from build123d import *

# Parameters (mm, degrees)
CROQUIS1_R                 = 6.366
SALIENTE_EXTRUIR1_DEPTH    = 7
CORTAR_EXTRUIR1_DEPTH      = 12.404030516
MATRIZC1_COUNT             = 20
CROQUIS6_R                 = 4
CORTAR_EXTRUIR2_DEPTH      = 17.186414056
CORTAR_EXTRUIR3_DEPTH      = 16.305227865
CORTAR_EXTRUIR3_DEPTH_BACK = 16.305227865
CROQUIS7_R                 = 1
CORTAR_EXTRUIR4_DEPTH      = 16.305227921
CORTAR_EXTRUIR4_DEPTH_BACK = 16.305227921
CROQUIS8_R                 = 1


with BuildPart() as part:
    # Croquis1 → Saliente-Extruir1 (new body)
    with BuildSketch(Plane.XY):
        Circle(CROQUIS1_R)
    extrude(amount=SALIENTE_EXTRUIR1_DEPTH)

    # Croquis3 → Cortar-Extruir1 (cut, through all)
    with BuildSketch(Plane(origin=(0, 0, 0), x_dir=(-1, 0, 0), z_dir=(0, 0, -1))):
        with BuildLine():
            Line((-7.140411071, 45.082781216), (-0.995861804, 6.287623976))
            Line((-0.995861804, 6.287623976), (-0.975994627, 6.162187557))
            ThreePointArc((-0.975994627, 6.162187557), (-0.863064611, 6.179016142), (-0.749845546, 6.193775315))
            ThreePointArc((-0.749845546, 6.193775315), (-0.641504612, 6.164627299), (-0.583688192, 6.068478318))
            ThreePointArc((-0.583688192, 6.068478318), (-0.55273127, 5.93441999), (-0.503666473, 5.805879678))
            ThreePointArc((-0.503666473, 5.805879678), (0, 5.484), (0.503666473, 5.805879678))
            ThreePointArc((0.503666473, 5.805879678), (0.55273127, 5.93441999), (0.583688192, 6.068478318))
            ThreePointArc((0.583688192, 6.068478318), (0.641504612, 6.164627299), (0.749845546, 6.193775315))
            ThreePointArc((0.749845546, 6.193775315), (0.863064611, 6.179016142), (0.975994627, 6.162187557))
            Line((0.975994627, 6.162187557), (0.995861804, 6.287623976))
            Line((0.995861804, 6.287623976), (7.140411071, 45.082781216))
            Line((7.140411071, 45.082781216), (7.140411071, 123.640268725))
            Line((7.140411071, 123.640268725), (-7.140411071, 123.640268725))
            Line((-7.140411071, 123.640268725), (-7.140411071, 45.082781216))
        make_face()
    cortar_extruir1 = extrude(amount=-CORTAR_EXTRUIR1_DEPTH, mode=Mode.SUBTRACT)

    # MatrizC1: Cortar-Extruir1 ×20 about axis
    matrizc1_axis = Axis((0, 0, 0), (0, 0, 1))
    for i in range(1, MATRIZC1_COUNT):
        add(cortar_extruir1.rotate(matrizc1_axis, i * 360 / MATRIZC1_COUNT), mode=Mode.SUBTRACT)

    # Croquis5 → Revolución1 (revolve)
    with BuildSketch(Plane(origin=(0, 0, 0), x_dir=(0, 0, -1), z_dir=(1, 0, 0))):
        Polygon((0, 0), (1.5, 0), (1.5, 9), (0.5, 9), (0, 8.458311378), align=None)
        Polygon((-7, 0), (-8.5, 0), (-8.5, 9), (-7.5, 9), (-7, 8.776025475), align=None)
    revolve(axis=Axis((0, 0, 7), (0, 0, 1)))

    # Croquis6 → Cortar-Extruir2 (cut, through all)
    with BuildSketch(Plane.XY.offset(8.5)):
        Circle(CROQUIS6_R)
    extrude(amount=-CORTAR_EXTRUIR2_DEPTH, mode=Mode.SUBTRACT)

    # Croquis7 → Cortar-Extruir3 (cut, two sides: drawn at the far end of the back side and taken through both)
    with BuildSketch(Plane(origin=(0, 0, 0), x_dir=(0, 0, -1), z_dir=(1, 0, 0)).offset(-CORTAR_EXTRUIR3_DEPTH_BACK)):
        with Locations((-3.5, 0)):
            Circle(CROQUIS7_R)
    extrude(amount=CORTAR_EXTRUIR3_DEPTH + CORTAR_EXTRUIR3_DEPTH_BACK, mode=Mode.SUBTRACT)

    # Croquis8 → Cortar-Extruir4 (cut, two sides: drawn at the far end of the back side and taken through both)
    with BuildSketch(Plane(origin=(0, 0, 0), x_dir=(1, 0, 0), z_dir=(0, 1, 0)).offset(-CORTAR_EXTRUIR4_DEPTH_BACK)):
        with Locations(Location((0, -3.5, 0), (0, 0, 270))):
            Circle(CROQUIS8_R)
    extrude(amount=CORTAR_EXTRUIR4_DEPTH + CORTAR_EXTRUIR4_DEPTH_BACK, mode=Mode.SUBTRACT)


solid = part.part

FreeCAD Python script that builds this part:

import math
import FreeCAD as App
import Part
import Sketcher
Q = App.Units.Quantity


def add_polygon(sketch, points):
    """Adds a closed chain of lines whose ends are joined by coincident constraints."""
    first, n = sketch.GeometryCount, len(points)
    for a, b in zip(points, points[1:] + points[:1]):
        sketch.addGeometry(Part.LineSegment(App.Vector(*a, 0), App.Vector(*b, 0)), False)
    for i in range(n):
        sketch.addConstraint(Sketcher.Constraint("Coincident", first + i, 2, first + (i + 1) % n, 1))

doc = App.newDocument("Part")
body = doc.addObject("PartDesign::Body", "Body")

# Sketch on XY plane
sketch1 = doc.addObject("Sketcher::SketchObject", "Sketch")
body.addObject(sketch1)
sketch1.AttachmentSupport = (doc.XY_Plane, [""])
sketch1.MapMode = "FlatFace"
sketch1.addGeometry(Part.Circle(App.Vector(0, 0, 0), App.Vector(0, 0, 1), 6.366), False)
sketch1.addConstraint([
    Sketcher.Constraint("Coincident", 0, 3, -1, 1),
    Sketcher.Constraint("Diameter", 0, 12.732),
])
pad1 = doc.addObject("PartDesign::Pad", "Pad")
body.addObject(pad1)
pad1.Profile = sketch1
pad1.Length = 7

# Sketch on XY plane
sketch2 = doc.addObject("Sketcher::SketchObject", "Sketch001")
body.addObject(sketch2)
sketch2.AttachmentSupport = (doc.XY_Plane, [""])
sketch2.MapMode = "FlatFace"
sketch2.addGeometry([
    Part.LineSegment(App.Vector(7.140411, 45.082781, 0), App.Vector(0.995862, 6.287624, 0)),  # 0
    Part.LineSegment(App.Vector(0.995862, 6.287624, 0), App.Vector(0.975995, 6.162188, 0)),  # 1
    Part.ArcOfCircle(Part.Circle(App.Vector(0.000001, 0.000004, 0), App.Vector(0, 0, 1), 6.238996), math.radians(80.999999), math.radians(83.097116)),  # 2
    Part.ArcOfCircle(Part.Circle(App.Vector(0.731818, 6.044863, 0), App.Vector(0, 0, 1), 0.15), math.radians(83.097115), math.radians(170.941782)),  # 3
    Part.ArcOfCircle(Part.Circle(App.Vector(-0.403841, 6.225916, 0), App.Vector(0, 0, 1), 1), math.radians(-24.836899), math.radians(-9.058218)),  # 4
    Part.ArcOfCircle(Part.Circle(App.Vector(0, 6.039, 0), App.Vector(0, 0, 1), 0.555), math.radians(-155.163101), math.radians(-24.836899)),  # 5
    Part.ArcOfCircle(Part.Circle(App.Vector(0.403841, 6.225916, 0), App.Vector(0, 0, 1), 1), math.radians(-170.941782), math.radians(-155.163101)),  # 6
    Part.ArcOfCircle(Part.Circle(App.Vector(-0.731818, 6.044863, 0), App.Vector(0, 0, 1), 0.15), math.radians(9.058218), math.radians(96.902885)),  # 7
    Part.ArcOfCircle(Part.Circle(App.Vector(-0.000001, 0.000004, 0), App.Vector(0, 0, 1), 6.238996), math.radians(96.902884), math.radians(99.000001)),  # 8
    Part.LineSegment(App.Vector(-0.975995, 6.162188, 0), App.Vector(-0.995862, 6.287624, 0)),  # 9
    Part.LineSegment(App.Vector(-0.995862, 6.287624, 0), App.Vector(-7.140411, 45.082781, 0)),  # 10
    Part.LineSegment(App.Vector(-7.140411, 45.082781, 0), App.Vector(-7.140411, 123.640269, 0)),  # 11
    Part.LineSegment(App.Vector(-7.140411, 123.640269, 0), App.Vector(7.140411, 123.640269, 0)),  # 12
    Part.LineSegment(App.Vector(7.140411, 123.640269, 0), App.Vector(7.140411, 45.082781, 0)),  # 13
], False)
sketch2.addConstraint([
    Sketcher.Constraint("Coincident", 0, 2, 1, 1),
    Sketcher.Constraint("Coincident", 1, 2, 2, 1),
    Sketcher.Constraint("Tangent", 2, 2, 3, 1),
    Sketcher.Constraint("Tangent", 3, 2, 4, 2),
    Sketcher.Constraint("Tangent", 4, 1, 5, 2),
    Sketcher.Constraint("Tangent", 5, 1, 6, 2),
    Sketcher.Constraint("Tangent", 6, 1, 7, 1),
    Sketcher.Constraint("Tangent", 7, 2, 8, 1),
    Sketcher.Constraint("Coincident", 8, 2, 9, 1),
    Sketcher.Constraint("Coincident", 9, 2, 10, 1),
    Sketcher.Constraint("Coincident", 10, 2, 11, 1),
    Sketcher.Constraint("Coincident", 11, 2, 12, 1),
    Sketcher.Constraint("Coincident", 12, 2, 13, 1),
    Sketcher.Constraint("Coincident", 13, 2, 0, 1),
    Sketcher.Constraint("Vertical", 11),
    Sketcher.Constraint("Horizontal", 12),
    Sketcher.Constraint("Vertical", 13),
    Sketcher.Constraint("Coincident", 2, 3, -1, 1),
    Sketcher.Constraint("Coincident", 8, 3, -1, 1),
    Sketcher.Constraint("Equal", 4, 6),
    Sketcher.Constraint("Equal", 3, 7),
    Sketcher.Constraint("Equal", 2, 8),
    Sketcher.Constraint("Symmetric", 4, 3, 6, 3, -2),
    Sketcher.Constraint("Symmetric", 0, 2, 9, 2, -2),
    Sketcher.Constraint("Symmetric", 10, 2, 13, 2, -2),
    Sketcher.Constraint("Parallel", 0, 1),
    Sketcher.Constraint("Parallel", 9, 10),
    Sketcher.Constraint("Radius", 4, 1.0),
    Sketcher.Constraint("Angle", 0, Q("-99 deg")),
    Sketcher.Constraint("Radius", 3, 0.15),
    Sketcher.Constraint("Radius", 5, 0.555),
    Sketcher.Constraint("Distance", 1, 0.127),
    Sketcher.Constraint("DistanceY", -1, 1, 5, 3, 6.039),
    Sketcher.Constraint("Radius", 2, 6.238996),
    Sketcher.Constraint("DistanceY", 4, 1, 3, 2, 0.262599),
    Sketcher.Constraint("DistanceX", 12, 1, 12, 2, 14.280822),
    Sketcher.Constraint("DistanceY", 11, 1, 11, 2, 78.557488),
    Sketcher.Constraint("DistanceX", -1, 1, 0, 2, 0.995862),
])
pocket1 = doc.addObject("PartDesign::Pocket", "Pocket")
body.addObject(pocket1)
pocket1.Profile = sketch2
pocket1.Type = "ThroughAll"
pocket1.Reversed = True
doc.recompute()

polarpattern = doc.addObject("PartDesign::PolarPattern", "PolarPattern")
body.addObject(polarpattern)
polarpattern.Originals = [pocket1]
polarpattern.Axis = (doc.Z_Axis, [""])
polarpattern.Angle = 360
polarpattern.Occurrences = 20
body.Tip = polarpattern

# Sketch on YZ plane
sketch3 = doc.addObject("Sketcher::SketchObject", "Sketch002")
body.addObject(sketch3)
sketch3.AttachmentSupport = (doc.YZ_Plane, [""])
sketch3.MapMode = "FlatFace"
add_polygon(sketch3, [(0, 0), (0, -1.5), (9, -1.5), (9, -0.5), (8.458311, 0)])  # lines 0-4
add_polygon(sketch3, [(0, 8.5), (0, 7), (8.776025, 7), (9, 7.5), (9, 8.5)])  # lines 5-9
sketch3.addConstraint([
    Sketcher.Constraint("Vertical", 0),
    Sketcher.Constraint("Horizontal", 1),
    Sketcher.Constraint("Vertical", 2),
    Sketcher.Constraint("Horizontal", 4),
    Sketcher.Constraint("Vertical", 5),
    Sketcher.Constraint("Horizontal", 6),
    Sketcher.Constraint("Vertical", 8),
    Sketcher.Constraint("Horizontal", 9),
    Sketcher.Constraint("Coincident", 4, 2, -1, 1),
    Sketcher.Constraint("PointOnObject", 5, 2, -2),
    Sketcher.Constraint("Vertical", 2, 2, 7, 2),
    Sketcher.Constraint("Equal", 0, 5),
    Sketcher.Constraint("Equal", 2, 8),
    Sketcher.Constraint("DistanceX", 1, 1, 1, 2, 9.0),
    Sketcher.Constraint("DistanceY", 2, 1, 2, 2, 1.0),
    Sketcher.Constraint("DistanceY", 0, 2, 0, 1, 1.5),
    Sketcher.Constraint("DistanceY", -1, 1, 5, 2, 7.0),
    Sketcher.Constraint("DistanceX", 4, 2, 4, 1, 8.458311),
    Sketcher.Constraint("DistanceX", 6, 1, 6, 2, 8.776025),
])
revolution = doc.addObject("PartDesign::Revolution", "Revolution")
body.addObject(revolution)
revolution.Profile = sketch3
revolution.ReferenceAxis = (sketch3, ["V_Axis"])
revolution.Angle = 360

# Sketch on XY plane
sketch4 = doc.addObject("Sketcher::SketchObject", "Sketch003")
body.addObject(sketch4)
sketch4.AttachmentSupport = (doc.XY_Plane, [""])
sketch4.MapMode = "FlatFace"
sketch4.AttachmentOffset = App.Placement(App.Vector(0, 0, 8.5), App.Rotation())
sketch4.addGeometry(Part.Circle(App.Vector(0, 0, 0), App.Vector(0, 0, 1), 4), False)
sketch4.addConstraint([
    Sketcher.Constraint("Coincident", 0, 3, -1, 1),
    Sketcher.Constraint("Diameter", 0, 8.0),
])
pocket2 = doc.addObject("PartDesign::Pocket", "Pocket001")
body.addObject(pocket2)
pocket2.Profile = sketch4
pocket2.Type = "ThroughAll"

# Sketch on YZ plane
sketch5 = doc.addObject("Sketcher::SketchObject", "Sketch004")
body.addObject(sketch5)
sketch5.AttachmentSupport = (doc.YZ_Plane, [""])
sketch5.MapMode = "FlatFace"
sketch5.addGeometry(Part.Circle(App.Vector(0, 3.5, 0), App.Vector(0, 0, 1), 1), False)
sketch5.addConstraint([
    Sketcher.Constraint("PointOnObject", 0, 3, -2),
    Sketcher.Constraint("Diameter", 0, 2.0),
    Sketcher.Constraint("DistanceY", -1, 1, 0, 3, 3.5),
])
pocket3 = doc.addObject("PartDesign::Pocket", "Pocket002")
body.addObject(pocket3)
pocket3.Profile = sketch5
pocket3.Type = "ThroughAll"
pocket3.Midplane = True

# Sketch on XZ plane
sketch6 = doc.addObject("Sketcher::SketchObject", "Sketch005")
body.addObject(sketch6)
sketch6.AttachmentSupport = (doc.XZ_Plane, [""])
sketch6.MapMode = "FlatFace"
sketch6.addGeometry(Part.Circle(App.Vector(0, 3.5, 0), App.Vector(0, 0, 1), 1), False)
sketch6.addConstraint([
    Sketcher.Constraint("PointOnObject", 0, 3, -2),
    Sketcher.Constraint("Diameter", 0, 2.0),
    Sketcher.Constraint("DistanceY", -1, 1, 0, 3, 3.5),
])
pocket4 = doc.addObject("PartDesign::Pocket", "Pocket003")
body.addObject(pocket4)
pocket4.Profile = sketch6
pocket4.Type = "ThroughAll"
pocket4.Midplane = True

doc.recompute()
